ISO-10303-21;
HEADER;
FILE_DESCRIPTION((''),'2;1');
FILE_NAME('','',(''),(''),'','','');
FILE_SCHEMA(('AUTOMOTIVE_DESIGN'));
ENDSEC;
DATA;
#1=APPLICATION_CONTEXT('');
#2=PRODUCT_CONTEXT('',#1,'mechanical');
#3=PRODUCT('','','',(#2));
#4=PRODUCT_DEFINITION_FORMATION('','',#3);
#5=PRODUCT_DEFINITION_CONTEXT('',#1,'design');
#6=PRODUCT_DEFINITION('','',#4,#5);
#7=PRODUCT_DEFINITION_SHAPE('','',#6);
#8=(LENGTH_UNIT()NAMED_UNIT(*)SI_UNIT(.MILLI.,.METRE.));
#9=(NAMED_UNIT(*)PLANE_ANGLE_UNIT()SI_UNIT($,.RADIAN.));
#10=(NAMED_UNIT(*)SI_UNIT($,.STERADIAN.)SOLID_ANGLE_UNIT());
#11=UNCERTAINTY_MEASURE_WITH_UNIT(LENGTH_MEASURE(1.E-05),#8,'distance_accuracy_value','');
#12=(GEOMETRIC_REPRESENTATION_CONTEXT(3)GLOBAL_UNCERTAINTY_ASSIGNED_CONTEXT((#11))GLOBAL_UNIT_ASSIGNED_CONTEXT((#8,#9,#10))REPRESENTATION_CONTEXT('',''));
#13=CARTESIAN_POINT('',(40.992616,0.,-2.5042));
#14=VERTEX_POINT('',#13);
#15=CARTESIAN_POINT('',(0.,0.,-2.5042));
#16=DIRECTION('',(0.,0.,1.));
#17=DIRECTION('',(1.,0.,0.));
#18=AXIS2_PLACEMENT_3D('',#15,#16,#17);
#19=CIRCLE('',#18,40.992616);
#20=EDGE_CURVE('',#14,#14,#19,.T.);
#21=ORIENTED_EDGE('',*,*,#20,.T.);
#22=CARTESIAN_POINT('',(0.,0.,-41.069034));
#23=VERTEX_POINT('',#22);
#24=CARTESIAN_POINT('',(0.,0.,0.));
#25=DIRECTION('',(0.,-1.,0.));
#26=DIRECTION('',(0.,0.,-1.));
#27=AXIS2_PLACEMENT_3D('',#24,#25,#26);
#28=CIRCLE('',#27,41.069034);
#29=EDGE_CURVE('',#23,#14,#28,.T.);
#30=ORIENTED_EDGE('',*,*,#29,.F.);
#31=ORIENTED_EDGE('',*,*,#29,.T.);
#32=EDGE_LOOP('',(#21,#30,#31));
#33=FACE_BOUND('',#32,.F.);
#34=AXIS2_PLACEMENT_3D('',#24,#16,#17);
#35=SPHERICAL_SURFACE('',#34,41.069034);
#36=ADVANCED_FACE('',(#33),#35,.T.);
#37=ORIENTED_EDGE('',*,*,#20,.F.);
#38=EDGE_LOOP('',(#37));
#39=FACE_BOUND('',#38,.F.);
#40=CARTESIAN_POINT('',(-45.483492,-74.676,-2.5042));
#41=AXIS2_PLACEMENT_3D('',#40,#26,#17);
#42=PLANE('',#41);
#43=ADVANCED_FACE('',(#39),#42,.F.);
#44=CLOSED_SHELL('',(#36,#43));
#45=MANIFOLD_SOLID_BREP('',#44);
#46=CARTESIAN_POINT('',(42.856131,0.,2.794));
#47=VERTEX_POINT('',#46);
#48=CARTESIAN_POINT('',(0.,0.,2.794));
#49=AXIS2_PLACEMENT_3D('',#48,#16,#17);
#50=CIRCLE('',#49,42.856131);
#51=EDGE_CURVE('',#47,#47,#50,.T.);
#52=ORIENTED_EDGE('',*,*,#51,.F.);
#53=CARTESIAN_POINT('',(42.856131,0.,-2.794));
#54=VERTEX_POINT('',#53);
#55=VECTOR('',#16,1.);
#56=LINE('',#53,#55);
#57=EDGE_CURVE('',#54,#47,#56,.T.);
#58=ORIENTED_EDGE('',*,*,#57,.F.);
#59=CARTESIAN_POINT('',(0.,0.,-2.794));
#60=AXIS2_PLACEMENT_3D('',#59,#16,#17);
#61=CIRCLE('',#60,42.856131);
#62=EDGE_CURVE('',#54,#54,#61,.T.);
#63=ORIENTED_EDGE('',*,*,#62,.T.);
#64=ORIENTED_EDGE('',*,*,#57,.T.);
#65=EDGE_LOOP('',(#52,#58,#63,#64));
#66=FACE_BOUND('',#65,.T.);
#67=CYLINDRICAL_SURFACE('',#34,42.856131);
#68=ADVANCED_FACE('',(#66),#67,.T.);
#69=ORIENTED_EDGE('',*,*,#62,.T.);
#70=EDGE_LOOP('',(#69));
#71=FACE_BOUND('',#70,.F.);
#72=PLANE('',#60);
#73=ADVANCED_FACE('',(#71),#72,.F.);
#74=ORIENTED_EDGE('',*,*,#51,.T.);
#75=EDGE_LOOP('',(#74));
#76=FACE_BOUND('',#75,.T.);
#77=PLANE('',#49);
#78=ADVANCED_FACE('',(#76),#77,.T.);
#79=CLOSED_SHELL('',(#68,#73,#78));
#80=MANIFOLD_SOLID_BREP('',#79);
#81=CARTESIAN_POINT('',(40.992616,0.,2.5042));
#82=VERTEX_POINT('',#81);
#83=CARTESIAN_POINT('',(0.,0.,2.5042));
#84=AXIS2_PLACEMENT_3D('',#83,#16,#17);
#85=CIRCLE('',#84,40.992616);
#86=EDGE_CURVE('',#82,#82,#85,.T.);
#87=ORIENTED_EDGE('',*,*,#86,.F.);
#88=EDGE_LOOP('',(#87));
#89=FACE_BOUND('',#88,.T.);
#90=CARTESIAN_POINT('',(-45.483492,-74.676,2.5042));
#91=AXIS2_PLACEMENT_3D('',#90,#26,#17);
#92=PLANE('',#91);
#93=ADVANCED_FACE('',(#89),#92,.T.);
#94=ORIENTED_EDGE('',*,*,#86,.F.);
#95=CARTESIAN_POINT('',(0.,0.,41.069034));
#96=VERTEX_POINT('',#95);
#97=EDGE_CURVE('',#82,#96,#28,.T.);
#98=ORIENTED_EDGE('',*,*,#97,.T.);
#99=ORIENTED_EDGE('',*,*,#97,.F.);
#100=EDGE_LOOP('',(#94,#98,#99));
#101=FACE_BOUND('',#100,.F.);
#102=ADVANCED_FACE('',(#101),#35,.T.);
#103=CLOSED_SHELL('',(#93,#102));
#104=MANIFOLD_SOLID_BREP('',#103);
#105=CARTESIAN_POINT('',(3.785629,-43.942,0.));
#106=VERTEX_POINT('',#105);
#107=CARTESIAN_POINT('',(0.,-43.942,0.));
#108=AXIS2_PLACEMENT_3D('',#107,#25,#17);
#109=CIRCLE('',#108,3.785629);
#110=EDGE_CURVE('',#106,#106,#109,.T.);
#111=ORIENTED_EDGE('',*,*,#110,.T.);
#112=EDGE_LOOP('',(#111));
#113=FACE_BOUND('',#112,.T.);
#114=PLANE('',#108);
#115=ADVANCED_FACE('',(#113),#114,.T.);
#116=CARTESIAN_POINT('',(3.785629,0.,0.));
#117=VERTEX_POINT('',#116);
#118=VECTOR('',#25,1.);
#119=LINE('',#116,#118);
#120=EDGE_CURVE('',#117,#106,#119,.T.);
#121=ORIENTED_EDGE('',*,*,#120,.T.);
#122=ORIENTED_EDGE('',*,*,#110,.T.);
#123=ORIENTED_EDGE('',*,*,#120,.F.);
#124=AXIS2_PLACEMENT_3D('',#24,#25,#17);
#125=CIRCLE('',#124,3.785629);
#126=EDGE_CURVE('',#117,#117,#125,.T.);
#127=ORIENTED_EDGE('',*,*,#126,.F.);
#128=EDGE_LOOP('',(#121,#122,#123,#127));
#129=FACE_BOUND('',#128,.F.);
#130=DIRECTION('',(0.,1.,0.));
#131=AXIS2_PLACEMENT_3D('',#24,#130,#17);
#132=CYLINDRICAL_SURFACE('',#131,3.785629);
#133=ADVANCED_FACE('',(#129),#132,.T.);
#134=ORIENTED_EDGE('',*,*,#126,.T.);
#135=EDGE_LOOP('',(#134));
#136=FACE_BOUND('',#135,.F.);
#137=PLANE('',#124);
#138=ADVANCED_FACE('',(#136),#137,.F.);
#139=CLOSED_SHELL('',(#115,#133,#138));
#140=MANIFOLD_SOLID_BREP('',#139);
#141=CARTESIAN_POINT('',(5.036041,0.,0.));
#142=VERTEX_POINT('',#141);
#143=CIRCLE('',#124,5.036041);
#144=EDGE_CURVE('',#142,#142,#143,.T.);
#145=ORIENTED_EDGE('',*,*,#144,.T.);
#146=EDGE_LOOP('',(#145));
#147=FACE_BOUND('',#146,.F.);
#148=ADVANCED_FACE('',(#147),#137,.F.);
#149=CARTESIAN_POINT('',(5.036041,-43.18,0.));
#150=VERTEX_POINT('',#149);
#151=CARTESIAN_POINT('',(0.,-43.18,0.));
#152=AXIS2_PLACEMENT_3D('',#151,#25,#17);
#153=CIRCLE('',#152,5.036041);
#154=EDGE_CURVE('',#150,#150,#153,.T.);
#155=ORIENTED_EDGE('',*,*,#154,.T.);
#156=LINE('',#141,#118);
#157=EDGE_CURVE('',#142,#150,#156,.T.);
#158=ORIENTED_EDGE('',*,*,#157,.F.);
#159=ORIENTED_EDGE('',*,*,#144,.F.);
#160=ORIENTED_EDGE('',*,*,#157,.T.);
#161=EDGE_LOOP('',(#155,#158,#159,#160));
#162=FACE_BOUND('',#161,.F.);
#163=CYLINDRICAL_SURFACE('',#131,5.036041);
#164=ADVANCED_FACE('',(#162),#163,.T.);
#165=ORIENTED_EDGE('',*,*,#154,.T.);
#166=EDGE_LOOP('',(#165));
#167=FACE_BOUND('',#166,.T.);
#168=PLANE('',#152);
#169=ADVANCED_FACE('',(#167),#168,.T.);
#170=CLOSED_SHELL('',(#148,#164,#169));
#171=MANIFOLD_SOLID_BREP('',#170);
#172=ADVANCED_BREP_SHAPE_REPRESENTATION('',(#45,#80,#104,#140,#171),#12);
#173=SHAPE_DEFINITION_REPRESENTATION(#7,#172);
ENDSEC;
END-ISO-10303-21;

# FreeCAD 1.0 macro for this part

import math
import FreeCAD as App
import Part
import Sketcher
from FreeCAD import Vector
Q = App.Units.Quantity


def add_polygon(sketch, points):
    """Adds a closed chain of lines whose ends are joined by coincident constraints."""
    first, n = sketch.GeometryCount, len(points)
    for a, b in zip(points, points[1:] + points[:1]):
        sketch.addGeometry(Part.LineSegment(App.Vector(*a, 0), App.Vector(*b, 0)), False)
    for i in range(n):
        sketch.addConstraint(Sketcher.Constraint("Coincident", first + i, 2, first + (i + 1) % n, 1))

doc = App.newDocument("Part")
body = doc.addObject("PartDesign::Body", "Body")
body.AllowCompound = True

# Sketch on XZ plane
sketch1 = body.newObject("Sketcher::SketchObject", "Sketch")
sketch1.AttachmentSupport = (doc.getObject("XZ_Plane"), [""])
sketch1.MapMode = "FlatFace"
sketch1.addGeometry([
    Part.LineSegment(Vector(0, 41, 0), Vector(0, -41, 0)),
    Part.ArcOfCircle(Part.Circle(Vector(0, 0, 0), Vector(0, 0, 1), 41), math.radians(-90), math.radians(90)),
], False)
sketch1.addConstraint([
    Sketcher.Constraint("Coincident", 0, 1, 1, 2),
    Sketcher.Constraint("Coincident", 1, 1, 0, 2),
    Sketcher.Constraint("Vertical", 0),
    Sketcher.Constraint("Coincident", 1, 3, -1, 1),
    Sketcher.Constraint("PointOnObject", 0, 1, -2),
    Sketcher.Constraint("Radius", 1, 41.069034),
])
revolution = body.newObject("PartDesign::Revolution", "Revolution")
revolution.Profile = sketch1
revolution.ReferenceAxis = (sketch1, ["V_Axis"])
revolution.Angle = 360

# Sketch on XZ plane
sketch2 = body.newObject("Sketcher::SketchObject", "Sketch001")
sketch2.AttachmentSupport = (doc.getObject("XZ_Plane"), [""])
sketch2.MapMode = "FlatFace"
sketch2.AttachmentOffset = App.Placement(Vector(0, 0, 2.94 * 25.4), App.Rotation())
add_polygon(sketch2, [(-45, 3), (-45, -3), (45, -3), (45, 3)])  # lines 0-3
sketch2.addConstraint([
    Sketcher.Constraint("Vertical", 0),
    Sketcher.Constraint("Horizontal", 1),
    Sketcher.Constraint("Vertical", 2),
    Sketcher.Constraint("Horizontal", 3),
    Sketcher.Constraint("Symmetric", 0, 2, 2, 2, -1, 1),
    Sketcher.Constraint("DistanceY", 0, 2, 0, 1, 5.0084),
    Sketcher.Constraint("DistanceX", 1, 1, 1, 2, 90.966984),
])
pocket1 = body.newObject("PartDesign::Pocket", "Pocket")
pocket1.Profile = sketch2
pocket1.Length = Q("7.52 in")
body2 = doc.addObject("PartDesign::Body", "Body001")

# Sketch on XY plane
sketch3 = body2.newObject("Sketcher::SketchObject", "Sketch002")
sketch3.AttachmentSupport = (doc.getObject("XY_Plane001"), [""])
sketch3.MapMode = "FlatFace"
sketch3.addGeometry(Part.Circle(Vector(0, 0, 0), Vector(0, 0, 1), 43), False)
sketch3.addConstraint([
    Sketcher.Constraint("Coincident", 0, 3, -1, 1),
    Sketcher.Constraint("Diameter", 0, 85.712262),
])
pad1 = body2.newObject("PartDesign::Pad", "Pad")
pad1.Profile = sketch3
pad1.Length = Q("0.22 in")
pad1.Midplane = True
body3 = doc.addObject("PartDesign::Body", "Body002")

# Sketch on XZ plane
sketch4 = body3.newObject("Sketcher::SketchObject", "Sketch003")
sketch4.AttachmentSupport = (doc.getObject("XZ_Plane002"), [""])
sketch4.MapMode = "FlatFace"
sketch4.addGeometry(Part.Circle(Vector(0, 0, 0), Vector(0, 0, 1), 3.8), False)
sketch4.addConstraint([
    Sketcher.Constraint("Coincident", 0, 3, -1, 1),
    Sketcher.Constraint("Diameter", 0, 7.571258),
])
pad2 = body3.newObject("PartDesign::Pad", "Pad001")
pad2.Profile = sketch4
pad2.Length = Q("1.73 in")
body4 = doc.addObject("PartDesign::Body", "Body003")

# Sketch on XZ plane
sketch5 = body4.newObject("Sketcher::SketchObject", "Sketch004")
sketch5.AttachmentSupport = (doc.getObject("XZ_Plane003"), [""])
sketch5.MapMode = "FlatFace"
sketch5.addGeometry(Part.Circle(Vector(0, 0, 0), Vector(0, 0, 1), 5), False)
sketch5.addConstraint([
    Sketcher.Constraint("Coincident", 0, 3, -1, 1),
    Sketcher.Constraint("Diameter", 0, 10.072082),
])
pad3 = body4.newObject("PartDesign::Pad", "Pad002")
pad3.Profile = sketch5
pad3.Length = Q("1.7 in")

doc.recompute()
